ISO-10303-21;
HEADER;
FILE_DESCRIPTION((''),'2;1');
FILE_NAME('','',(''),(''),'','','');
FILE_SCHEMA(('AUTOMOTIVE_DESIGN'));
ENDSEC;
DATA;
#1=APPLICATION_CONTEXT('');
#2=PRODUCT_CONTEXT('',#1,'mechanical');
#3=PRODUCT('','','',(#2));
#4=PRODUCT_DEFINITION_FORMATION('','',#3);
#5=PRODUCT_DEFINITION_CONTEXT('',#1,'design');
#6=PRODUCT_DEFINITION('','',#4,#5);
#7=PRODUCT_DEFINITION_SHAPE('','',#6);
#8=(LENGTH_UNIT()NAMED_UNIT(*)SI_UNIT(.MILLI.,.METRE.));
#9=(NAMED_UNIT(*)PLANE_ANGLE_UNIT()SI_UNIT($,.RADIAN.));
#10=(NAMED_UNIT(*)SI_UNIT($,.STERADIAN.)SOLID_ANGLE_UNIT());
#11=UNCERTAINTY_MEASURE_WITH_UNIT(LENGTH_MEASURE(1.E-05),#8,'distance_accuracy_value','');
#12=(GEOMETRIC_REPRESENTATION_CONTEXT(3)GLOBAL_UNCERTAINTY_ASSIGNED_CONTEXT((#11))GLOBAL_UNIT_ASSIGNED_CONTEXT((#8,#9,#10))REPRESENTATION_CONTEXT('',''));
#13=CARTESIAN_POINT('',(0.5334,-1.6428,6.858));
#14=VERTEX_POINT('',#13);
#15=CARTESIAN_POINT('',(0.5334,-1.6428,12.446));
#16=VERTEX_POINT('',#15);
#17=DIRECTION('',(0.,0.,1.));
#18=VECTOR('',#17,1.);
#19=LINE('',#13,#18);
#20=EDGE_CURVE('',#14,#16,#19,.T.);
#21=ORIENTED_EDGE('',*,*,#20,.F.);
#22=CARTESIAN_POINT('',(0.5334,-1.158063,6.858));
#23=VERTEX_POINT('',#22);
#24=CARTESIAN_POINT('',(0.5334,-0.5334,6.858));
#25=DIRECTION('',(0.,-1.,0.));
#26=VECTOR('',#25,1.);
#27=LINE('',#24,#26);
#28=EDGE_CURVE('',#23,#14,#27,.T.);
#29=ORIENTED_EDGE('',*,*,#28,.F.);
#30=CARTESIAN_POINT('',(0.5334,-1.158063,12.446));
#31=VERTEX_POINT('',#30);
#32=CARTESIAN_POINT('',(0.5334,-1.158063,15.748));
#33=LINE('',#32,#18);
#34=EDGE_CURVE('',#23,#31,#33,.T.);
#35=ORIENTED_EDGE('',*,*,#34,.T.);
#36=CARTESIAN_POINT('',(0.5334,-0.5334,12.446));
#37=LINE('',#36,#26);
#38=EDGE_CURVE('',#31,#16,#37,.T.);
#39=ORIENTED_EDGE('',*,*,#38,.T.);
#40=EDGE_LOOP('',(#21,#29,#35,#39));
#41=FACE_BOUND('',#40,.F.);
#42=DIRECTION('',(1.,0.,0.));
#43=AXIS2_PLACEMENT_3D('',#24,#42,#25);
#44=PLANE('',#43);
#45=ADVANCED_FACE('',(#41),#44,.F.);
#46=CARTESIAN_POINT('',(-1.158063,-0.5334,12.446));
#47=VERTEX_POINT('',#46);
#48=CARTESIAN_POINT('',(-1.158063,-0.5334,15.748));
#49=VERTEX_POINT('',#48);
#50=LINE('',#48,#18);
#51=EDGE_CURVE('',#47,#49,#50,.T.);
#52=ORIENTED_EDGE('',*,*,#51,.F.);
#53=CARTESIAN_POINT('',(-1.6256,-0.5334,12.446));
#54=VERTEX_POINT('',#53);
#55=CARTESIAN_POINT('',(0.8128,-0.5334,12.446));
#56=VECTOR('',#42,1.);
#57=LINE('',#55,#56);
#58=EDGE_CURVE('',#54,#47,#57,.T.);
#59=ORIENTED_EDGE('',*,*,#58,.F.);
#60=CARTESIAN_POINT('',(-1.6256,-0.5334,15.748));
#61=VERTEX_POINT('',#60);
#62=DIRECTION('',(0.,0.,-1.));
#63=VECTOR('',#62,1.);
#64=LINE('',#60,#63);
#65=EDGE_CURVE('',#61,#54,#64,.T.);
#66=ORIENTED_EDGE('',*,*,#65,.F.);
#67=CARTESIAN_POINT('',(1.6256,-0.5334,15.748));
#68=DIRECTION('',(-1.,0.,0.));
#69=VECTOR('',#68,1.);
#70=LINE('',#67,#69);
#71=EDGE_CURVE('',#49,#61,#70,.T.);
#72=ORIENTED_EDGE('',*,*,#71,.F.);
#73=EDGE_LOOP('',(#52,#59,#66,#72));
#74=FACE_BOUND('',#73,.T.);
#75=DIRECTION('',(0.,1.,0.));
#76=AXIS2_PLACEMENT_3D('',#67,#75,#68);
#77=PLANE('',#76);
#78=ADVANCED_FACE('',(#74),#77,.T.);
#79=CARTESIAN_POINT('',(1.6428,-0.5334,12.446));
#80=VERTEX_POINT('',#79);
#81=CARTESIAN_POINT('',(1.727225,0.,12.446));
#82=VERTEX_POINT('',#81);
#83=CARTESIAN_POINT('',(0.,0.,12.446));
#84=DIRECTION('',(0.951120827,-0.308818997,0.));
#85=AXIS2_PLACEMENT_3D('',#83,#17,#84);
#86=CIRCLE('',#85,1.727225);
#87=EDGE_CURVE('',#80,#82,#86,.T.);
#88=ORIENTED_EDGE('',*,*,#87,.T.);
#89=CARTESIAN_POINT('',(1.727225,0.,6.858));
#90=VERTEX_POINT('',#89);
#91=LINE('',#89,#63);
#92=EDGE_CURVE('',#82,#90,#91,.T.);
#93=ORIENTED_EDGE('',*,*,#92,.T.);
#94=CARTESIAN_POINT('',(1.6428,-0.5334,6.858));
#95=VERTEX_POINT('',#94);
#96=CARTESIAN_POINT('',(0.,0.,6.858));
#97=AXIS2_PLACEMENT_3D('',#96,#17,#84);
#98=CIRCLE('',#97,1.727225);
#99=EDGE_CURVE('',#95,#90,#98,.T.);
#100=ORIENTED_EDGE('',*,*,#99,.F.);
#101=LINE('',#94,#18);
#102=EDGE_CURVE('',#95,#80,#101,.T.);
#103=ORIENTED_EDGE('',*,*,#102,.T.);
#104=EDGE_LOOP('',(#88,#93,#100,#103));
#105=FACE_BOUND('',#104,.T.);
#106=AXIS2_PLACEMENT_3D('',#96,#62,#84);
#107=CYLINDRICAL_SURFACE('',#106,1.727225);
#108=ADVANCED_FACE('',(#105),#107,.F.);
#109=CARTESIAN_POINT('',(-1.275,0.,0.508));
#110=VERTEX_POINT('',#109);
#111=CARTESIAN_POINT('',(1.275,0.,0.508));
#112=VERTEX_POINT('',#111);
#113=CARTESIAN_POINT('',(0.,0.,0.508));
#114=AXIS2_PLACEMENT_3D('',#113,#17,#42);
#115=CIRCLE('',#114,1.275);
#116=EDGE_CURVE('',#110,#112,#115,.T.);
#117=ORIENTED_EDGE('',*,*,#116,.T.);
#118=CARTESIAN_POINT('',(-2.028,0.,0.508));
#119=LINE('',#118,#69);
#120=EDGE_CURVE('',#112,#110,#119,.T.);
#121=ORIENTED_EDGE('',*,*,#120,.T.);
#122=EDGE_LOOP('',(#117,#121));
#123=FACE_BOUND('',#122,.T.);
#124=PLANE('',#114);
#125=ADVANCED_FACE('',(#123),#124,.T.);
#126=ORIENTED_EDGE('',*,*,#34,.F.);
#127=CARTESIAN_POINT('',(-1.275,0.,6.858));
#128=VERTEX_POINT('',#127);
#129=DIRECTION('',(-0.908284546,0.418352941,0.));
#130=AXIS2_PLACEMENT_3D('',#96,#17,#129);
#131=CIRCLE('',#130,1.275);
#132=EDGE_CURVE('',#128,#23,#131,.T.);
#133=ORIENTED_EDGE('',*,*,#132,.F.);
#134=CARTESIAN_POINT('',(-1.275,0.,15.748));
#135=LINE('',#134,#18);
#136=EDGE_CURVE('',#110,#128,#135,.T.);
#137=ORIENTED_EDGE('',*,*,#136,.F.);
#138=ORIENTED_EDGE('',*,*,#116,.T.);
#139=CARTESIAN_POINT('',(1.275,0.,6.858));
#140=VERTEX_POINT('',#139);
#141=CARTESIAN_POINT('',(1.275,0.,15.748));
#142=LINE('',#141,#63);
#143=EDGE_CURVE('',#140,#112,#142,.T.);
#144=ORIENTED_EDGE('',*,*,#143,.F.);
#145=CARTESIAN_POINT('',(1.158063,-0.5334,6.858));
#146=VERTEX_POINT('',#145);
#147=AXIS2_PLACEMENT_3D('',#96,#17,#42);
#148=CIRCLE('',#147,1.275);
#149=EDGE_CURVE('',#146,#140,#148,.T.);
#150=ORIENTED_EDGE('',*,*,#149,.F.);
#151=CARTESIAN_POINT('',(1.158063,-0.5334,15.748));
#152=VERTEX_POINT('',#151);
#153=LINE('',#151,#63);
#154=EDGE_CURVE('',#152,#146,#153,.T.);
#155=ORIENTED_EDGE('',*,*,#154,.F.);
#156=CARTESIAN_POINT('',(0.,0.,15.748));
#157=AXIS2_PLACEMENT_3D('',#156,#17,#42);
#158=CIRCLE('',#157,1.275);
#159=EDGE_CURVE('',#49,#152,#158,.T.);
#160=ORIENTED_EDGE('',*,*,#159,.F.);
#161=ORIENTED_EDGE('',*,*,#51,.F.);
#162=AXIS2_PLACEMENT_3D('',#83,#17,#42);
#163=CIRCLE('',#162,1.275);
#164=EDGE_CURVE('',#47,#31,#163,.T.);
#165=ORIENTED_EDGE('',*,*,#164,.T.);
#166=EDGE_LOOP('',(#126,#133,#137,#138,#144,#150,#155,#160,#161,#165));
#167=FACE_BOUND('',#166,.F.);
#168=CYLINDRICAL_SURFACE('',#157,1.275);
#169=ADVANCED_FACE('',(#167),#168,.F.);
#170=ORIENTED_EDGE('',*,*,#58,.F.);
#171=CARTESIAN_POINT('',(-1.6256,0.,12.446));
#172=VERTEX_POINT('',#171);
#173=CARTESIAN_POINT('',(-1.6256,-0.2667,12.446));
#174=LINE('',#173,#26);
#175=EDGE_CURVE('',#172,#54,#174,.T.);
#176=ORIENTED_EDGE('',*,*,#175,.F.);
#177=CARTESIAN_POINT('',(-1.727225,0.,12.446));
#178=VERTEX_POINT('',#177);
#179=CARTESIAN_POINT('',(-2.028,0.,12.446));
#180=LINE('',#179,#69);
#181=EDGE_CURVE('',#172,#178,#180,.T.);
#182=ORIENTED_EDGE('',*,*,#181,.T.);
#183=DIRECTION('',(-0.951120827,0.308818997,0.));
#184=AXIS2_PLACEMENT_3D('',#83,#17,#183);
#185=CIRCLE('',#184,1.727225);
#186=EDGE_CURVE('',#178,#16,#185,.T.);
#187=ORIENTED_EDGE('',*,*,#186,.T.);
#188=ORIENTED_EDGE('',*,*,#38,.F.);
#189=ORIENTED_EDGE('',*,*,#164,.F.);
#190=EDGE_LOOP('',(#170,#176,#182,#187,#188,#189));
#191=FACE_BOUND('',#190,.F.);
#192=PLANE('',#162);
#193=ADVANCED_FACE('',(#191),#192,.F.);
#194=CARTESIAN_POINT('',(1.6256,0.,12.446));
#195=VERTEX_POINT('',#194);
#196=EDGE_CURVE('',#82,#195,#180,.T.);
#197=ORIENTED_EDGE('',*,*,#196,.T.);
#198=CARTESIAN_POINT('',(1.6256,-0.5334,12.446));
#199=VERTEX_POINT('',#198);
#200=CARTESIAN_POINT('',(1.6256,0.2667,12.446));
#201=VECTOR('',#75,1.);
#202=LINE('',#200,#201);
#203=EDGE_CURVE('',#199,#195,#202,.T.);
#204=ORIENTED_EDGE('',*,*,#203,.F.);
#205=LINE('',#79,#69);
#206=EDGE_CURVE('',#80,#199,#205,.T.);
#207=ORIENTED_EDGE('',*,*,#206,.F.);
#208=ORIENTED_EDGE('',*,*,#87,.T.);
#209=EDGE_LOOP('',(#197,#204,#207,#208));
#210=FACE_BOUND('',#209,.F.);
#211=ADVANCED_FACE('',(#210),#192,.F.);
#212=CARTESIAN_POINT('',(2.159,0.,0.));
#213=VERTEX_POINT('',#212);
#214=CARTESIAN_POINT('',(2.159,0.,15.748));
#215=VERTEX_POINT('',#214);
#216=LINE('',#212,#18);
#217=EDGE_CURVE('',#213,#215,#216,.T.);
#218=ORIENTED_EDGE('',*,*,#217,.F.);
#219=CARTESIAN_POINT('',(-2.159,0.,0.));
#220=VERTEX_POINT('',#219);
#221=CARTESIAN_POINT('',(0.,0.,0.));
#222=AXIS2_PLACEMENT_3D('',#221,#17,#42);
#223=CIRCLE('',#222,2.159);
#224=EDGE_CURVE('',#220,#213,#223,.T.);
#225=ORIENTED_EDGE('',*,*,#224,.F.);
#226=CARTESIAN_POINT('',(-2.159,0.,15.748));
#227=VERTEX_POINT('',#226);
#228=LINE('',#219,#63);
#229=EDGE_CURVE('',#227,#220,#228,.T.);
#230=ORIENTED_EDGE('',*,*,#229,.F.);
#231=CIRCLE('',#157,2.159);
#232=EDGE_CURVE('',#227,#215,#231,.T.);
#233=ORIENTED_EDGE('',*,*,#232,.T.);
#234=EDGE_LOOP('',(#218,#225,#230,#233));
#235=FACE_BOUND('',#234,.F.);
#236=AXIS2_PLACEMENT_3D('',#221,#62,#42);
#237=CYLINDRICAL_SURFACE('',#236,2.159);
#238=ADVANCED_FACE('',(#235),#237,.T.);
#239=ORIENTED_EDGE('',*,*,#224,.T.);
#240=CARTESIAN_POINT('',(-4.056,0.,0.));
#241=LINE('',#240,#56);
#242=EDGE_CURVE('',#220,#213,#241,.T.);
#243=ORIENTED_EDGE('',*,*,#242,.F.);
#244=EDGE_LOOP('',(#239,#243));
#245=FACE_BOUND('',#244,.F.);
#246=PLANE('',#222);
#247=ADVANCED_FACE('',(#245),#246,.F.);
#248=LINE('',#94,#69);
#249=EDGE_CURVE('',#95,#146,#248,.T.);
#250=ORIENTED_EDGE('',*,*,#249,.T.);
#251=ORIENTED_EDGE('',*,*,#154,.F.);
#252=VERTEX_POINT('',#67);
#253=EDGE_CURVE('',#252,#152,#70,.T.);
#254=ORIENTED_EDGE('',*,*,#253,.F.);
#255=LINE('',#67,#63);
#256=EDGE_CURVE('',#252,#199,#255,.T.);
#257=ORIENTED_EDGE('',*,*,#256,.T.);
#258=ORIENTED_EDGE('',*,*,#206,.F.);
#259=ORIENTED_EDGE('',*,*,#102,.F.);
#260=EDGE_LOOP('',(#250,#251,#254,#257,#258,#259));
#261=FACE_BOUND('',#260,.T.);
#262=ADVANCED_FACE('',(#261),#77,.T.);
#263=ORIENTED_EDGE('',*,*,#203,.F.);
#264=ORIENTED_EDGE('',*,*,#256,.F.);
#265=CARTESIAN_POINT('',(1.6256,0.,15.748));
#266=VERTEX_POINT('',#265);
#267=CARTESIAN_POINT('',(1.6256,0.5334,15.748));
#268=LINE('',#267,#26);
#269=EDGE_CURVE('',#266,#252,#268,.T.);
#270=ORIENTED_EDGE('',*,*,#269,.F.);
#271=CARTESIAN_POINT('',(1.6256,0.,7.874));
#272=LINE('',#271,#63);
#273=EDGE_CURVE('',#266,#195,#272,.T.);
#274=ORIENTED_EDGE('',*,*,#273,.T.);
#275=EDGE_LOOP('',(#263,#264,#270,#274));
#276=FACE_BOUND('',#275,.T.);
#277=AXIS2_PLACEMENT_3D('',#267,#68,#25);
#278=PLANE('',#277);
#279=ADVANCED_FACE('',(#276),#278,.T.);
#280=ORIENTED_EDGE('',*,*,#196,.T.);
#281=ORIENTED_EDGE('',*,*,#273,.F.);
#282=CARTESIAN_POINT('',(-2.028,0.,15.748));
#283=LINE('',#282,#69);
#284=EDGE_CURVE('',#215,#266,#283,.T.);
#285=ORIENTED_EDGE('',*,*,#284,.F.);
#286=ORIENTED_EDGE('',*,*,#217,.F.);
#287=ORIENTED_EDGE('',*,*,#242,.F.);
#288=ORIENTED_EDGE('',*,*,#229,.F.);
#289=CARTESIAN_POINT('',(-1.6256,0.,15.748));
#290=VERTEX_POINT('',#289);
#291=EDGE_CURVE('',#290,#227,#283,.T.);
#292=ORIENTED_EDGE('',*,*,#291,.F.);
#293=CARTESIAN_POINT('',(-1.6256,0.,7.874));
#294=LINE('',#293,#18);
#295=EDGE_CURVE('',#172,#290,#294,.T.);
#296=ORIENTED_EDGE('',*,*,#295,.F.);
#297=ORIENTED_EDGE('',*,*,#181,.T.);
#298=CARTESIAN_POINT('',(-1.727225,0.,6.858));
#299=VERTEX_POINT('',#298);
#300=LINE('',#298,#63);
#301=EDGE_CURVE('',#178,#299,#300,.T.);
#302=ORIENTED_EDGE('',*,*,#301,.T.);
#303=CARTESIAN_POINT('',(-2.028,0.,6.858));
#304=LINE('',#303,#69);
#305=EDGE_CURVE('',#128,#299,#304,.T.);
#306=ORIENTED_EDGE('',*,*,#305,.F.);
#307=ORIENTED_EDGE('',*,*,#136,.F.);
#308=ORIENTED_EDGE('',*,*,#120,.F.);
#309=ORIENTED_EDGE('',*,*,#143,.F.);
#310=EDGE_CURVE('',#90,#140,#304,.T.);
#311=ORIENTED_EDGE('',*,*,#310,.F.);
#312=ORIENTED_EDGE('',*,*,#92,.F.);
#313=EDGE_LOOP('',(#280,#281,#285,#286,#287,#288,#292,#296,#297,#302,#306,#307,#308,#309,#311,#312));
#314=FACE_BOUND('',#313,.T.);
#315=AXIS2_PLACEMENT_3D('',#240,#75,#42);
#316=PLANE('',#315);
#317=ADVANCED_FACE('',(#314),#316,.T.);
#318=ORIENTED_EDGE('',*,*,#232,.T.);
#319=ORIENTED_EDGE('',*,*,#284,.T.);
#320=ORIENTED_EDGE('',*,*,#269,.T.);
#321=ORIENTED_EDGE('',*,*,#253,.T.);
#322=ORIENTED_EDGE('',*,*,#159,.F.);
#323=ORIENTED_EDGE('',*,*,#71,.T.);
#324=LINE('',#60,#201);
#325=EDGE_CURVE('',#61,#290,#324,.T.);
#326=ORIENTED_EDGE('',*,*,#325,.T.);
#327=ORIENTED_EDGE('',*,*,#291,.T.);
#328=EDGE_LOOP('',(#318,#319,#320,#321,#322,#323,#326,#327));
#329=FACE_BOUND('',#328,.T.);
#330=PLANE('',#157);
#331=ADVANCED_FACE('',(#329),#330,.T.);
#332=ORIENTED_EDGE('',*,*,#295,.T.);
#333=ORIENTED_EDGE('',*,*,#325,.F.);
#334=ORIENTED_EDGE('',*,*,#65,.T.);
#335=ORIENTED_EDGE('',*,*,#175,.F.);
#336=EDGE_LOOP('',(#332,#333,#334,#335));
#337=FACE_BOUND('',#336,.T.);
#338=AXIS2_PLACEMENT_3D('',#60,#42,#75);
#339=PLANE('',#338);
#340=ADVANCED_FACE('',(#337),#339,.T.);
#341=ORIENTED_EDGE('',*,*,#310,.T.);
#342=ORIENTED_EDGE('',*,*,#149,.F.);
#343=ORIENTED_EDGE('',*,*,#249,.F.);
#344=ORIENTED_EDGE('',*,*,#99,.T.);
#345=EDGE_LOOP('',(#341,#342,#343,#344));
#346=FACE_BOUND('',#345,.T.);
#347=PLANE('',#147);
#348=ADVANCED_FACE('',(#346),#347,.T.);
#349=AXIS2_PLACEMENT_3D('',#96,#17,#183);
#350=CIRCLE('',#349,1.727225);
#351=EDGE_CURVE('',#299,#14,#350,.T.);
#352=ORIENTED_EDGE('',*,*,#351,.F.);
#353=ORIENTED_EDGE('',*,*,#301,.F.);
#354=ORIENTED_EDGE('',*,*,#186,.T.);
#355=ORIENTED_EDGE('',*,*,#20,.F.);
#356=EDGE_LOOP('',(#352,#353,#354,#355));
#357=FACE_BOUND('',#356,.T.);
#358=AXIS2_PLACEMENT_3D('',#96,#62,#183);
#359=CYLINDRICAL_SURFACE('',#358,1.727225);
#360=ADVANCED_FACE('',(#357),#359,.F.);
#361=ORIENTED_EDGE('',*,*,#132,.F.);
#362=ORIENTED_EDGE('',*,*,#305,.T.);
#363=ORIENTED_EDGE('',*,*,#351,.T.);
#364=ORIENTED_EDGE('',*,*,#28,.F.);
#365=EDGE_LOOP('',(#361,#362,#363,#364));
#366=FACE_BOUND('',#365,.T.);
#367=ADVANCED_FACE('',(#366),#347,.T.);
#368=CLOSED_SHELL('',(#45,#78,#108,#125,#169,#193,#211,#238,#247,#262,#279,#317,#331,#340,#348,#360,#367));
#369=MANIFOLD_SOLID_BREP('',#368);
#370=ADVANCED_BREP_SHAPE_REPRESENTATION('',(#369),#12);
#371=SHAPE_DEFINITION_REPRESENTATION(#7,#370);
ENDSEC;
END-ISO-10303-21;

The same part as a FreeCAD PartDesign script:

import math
import FreeCAD as App
import Part
import Sketcher
Q = App.Units.Quantity


def add_polygon(sketch, points):
    """Adds a closed chain of lines whose ends are joined by coincident constraints."""
    first, n = sketch.GeometryCount, len(points)
    for a, b in zip(points, points[1:] + points[:1]):
        sketch.addGeometry(Part.LineSegment(App.Vector(*a, 0), App.Vector(*b, 0)), False)
    for i in range(n):
        sketch.addConstraint(Sketcher.Constraint("Coincident", first + i, 2, first + (i + 1) % n, 1))

doc = App.newDocument("Part")
params = doc.addObject("Spreadsheet::Sheet", "Params")
for row, (alias, value) in enumerate([
    ("sketch1_diameter", "0.17 in"),
    ("pad1_length", "0.62 in"),
    ("pocket1_length", "0.6 in"),
    ("pocket2_length", "0.35 in"),
    ("sketch4_radius", "0.068 in"),
    ("pocket3_length", "0.22 in"),
    ("pocket4_length", "1 in"),
], start=1):
    params.set(f"A{row}", alias)
    params.set(f"B{row}", "=" + value)
    params.setAlias(f"B{row}", alias)

body = doc.addObject("PartDesign::Body", "Body")

sketch1 = doc.addObject("Sketcher::SketchObject", "Sketch")
body.addObject(sketch1)
sketch1.AttachmentSupport = (doc.XY_Plane, [""])
sketch1.MapMode = "FlatFace"
sketch1.addGeometry(Part.Circle(App.Vector(0, 0, 0), App.Vector(0, 0, 1), 2.2), False)
sketch1.addConstraint([
    Sketcher.Constraint("Coincident", 0, 3, -1, 1),
    Sketcher.Constraint("Diameter", 0, Q("0.17 in")),
])
sketch1.setExpression("Constraints[1]", "Params.sketch1_diameter")
pad1 = doc.addObject("PartDesign::Pad", "Pad")
body.addObject(pad1)
pad1.Profile = sketch1
pad1.setExpression("Length", "Params.pad1_length")

sketch2 = doc.addObject("Sketcher::SketchObject", "Sketch001")
body.addObject(sketch2)
sketch2.AttachmentSupport = (doc.XY_Plane, [""])
sketch2.MapMode = "FlatFace"
sketch2.AttachmentOffset = App.Placement(App.Vector(0, 0, 0.62 * 25.4), App.Rotation())
sketch2.addGeometry(Part.Circle(App.Vector(0, 0, 0), App.Vector(0, 0, 1), 1.3), False)
sketch2.addConstraint([
    Sketcher.Constraint("Coincident", 0, 3, -1, 1),
    Sketcher.Constraint("Diameter", 0, Q("0.1004 in")),
])
pocket1 = doc.addObject("PartDesign::Pocket", "Pocket")
body.addObject(pocket1)
pocket1.Profile = sketch2
pocket1.setExpression("Length", "Params.pocket1_length")

sketch3 = doc.addObject("Sketcher::SketchObject", "Sketch002")
body.addObject(sketch3)
sketch3.AttachmentSupport = (doc.XY_Plane, [""])
sketch3.MapMode = "FlatFace"
sketch3.AttachmentOffset = App.Placement(App.Vector(0, 0, 0.62 * 25.4), App.Rotation())
add_polygon(sketch3, [(1.6, 0.5), (-1.6, 0.5), (-1.6, -0.5), (1.6, -0.5)])
sketch3.addConstraint([
    Sketcher.Constraint("Horizontal", 0),
    Sketcher.Constraint("Vertical", 1),
    Sketcher.Constraint("Horizontal", 2),
    Sketcher.Constraint("Vertical", 3),
    Sketcher.Constraint("Symmetric", 0, 2, 2, 2, -1, 1),
    Sketcher.Constraint("DistanceX", 0, 2, -1, 1, Q("0.064 in")),
    Sketcher.Constraint("DistanceY", -1, 1, 0, 2, Q("0.021 in")),
])
pocket2 = doc.addObject("PartDesign::Pocket", "Pocket001")
body.addObject(pocket2)
pocket2.Profile = sketch3
pocket2.setExpression("Length", "Params.pocket2_length")

sketch4 = doc.addObject("Sketcher::SketchObject", "Sketch003")
body.addObject(sketch4)
sketch4.AttachmentSupport = (doc.XY_Plane, [""])
sketch4.MapMode = "FlatFace"
sketch4.AttachmentOffset = App.Placement(App.Vector(0, 0, 0.27 * 25.4), App.Rotation())
sketch4.addGeometry([
    Part.LineSegment(App.Vector(0.5, -0.5, 0), App.Vector(1.6, -0.5, 0)),
    Part.ArcOfCircle(Part.Circle(App.Vector(0, 0, 0), App.Vector(0, 0, 1), 1.7), math.radians(-18), math.radians(108)),
    Part.LineSegment(App.Vector(-0.5, 1.6, 0), App.Vector(-0.5, 0.5, 0)),
    Part.LineSegment(App.Vector(-0.5, 0.5, 0), App.Vector(-1.6, 0.5, 0)),
    Part.ArcOfCircle(Part.Circle(App.Vector(0, 0, 0), App.Vector(0, 0, 1), 1.7), math.radians(162), math.radians(288)),
    Part.LineSegment(App.Vector(0.5, -1.6, 0), App.Vector(0.5, -0.5, 0)),
], False)
sketch4.addConstraint([
    Sketcher.Constraint("Coincident", 0, 2, 1, 1),
    Sketcher.Constraint("Coincident", 1, 2, 2, 1),
    Sketcher.Constraint("Coincident", 2, 2, 3, 1),
    Sketcher.Constraint("Coincident", 3, 2, 4, 1),
    Sketcher.Constraint("Coincident", 4, 2, 5, 1),
    Sketcher.Constraint("Coincident", 5, 2, 0, 1),
    Sketcher.Constraint("Horizontal", 0),
    Sketcher.Constraint("Vertical", 2),
    Sketcher.Constraint("Horizontal", 3),
    Sketcher.Constraint("Vertical", 5),
    Sketcher.Constraint("Coincident", 1, 3, -1, 1),
    Sketcher.Constraint("Coincident", 4, 3, -1, 1),
    Sketcher.Constraint("Equal", 1, 4),
    Sketcher.Constraint("Symmetric", 2, 2, 5, 2, -1, 1),
    Sketcher.Constraint("Equal", 3, 2),
    Sketcher.Constraint("Radius", 1, Q("0.068 in")),
    Sketcher.Constraint("DistanceY", 0, 2, -1, 1, Q("0.021 in")),
])
sketch4.setExpression("Constraints[15]", "Params.sketch4_radius")
pocket3 = doc.addObject("PartDesign::Pocket", "Pocket002")
body.addObject(pocket3)
pocket3.Profile = sketch4
pocket3.setExpression("Length", "Params.pocket3_length")
pocket3.Reversed = True

sketch5 = doc.addObject("Sketcher::SketchObject", "Sketch004")
body.addObject(sketch5)
sketch5.AttachmentSupport = (doc.XY_Plane, [""])
sketch5.MapMode = "FlatFace"
add_polygon(sketch5, [(-4.1, 4.1), (3.9, 4.1), (3.9, 0), (-4.1, 0)])
sketch5.addConstraint([
    Sketcher.Constraint("Horizontal", 0),
    Sketcher.Constraint("Vertical", 1),
    Sketcher.Constraint("Horizontal", 2),
    Sketcher.Constraint("Vertical", 3),
    Sketcher.Constraint("PointOnObject", 1, 2, -1),
    Sketcher.Constraint("DistanceY", 1, 2, 1, 1, Q("0.1608 in")),
    Sketcher.Constraint("DistanceX", 0, 1, 0, 2, 7.9406),
    Sketcher.Constraint("DistanceX", -1, 1, 0, 2, 3.8846),
])
pocket4 = doc.addObject("PartDesign::Pocket", "Pocket003")
body.addObject(pocket4)
pocket4.Profile = sketch5
pocket4.setExpression("Length", "Params.pocket4_length")
pocket4.Reversed = True

doc.recompute()
